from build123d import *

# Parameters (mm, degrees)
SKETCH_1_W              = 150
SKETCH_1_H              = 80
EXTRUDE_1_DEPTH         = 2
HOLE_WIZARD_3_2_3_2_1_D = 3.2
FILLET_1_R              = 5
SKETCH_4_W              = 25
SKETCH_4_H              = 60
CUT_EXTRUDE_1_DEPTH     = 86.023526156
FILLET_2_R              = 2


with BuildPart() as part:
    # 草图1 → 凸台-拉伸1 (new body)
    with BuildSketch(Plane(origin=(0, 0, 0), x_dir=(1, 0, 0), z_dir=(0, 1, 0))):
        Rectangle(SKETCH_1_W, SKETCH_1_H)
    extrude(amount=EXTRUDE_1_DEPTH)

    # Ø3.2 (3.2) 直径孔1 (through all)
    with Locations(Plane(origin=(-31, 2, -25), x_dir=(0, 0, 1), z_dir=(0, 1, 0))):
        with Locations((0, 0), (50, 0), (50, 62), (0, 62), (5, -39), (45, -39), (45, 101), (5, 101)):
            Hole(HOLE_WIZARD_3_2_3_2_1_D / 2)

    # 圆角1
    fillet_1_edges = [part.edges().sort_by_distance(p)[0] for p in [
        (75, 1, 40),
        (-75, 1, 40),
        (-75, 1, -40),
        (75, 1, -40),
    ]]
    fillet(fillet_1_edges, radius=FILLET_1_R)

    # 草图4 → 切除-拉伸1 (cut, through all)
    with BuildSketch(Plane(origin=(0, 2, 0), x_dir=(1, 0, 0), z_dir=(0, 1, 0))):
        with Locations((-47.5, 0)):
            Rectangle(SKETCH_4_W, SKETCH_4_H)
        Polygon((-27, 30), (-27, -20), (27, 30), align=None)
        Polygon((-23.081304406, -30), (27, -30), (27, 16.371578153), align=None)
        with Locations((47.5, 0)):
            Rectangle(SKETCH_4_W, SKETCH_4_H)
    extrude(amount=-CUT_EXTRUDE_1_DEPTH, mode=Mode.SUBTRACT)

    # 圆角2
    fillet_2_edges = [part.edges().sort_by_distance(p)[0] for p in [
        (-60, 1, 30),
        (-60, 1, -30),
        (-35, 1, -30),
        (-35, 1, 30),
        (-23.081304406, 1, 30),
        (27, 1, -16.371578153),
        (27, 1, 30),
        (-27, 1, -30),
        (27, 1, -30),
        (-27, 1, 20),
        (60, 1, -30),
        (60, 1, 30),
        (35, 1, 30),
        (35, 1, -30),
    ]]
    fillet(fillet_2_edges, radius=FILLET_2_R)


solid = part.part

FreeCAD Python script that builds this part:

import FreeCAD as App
import Part
import Sketcher


def edges_at(feature, points):
    """Names of the edges that pass closest to the given points."""
    edges = feature.Shape.Edges
    near = lambda p: min(range(len(edges)), key=lambda i: edges[i].distToShape(Part.Vertex(*p))[0])
    return sorted({f"Edge{near(p) + 1}" for p in points})


def add_polygon(sketch, points):
    """Adds a closed chain of lines whose ends are joined by coincident constraints."""
    first, n = sketch.GeometryCount, len(points)
    for a, b in zip(points, points[1:] + points[:1]):
        sketch.addGeometry(Part.LineSegment(App.Vector(*a, 0), App.Vector(*b, 0)), False)
    for i in range(n):
        sketch.addConstraint(Sketcher.Constraint("Coincident", first + i, 2, first + (i + 1) % n, 1))

doc = App.newDocument("Part")
body = doc.addObject("PartDesign::Body", "Body")

sketch1 = body.newObject("Sketcher::SketchObject", "Sketch")
sketch1.AttachmentSupport = (doc.getObject("XZ_Plane"), [""])
sketch1.MapMode = "FlatFace"
add_polygon(sketch1, [(-75, -40), (-75, 40), (75, 40), (75, -40)])
sketch1.addConstraint([
    Sketcher.Constraint("Vertical", 0),
    Sketcher.Constraint("Horizontal", 1),
    Sketcher.Constraint("Vertical", 2),
    Sketcher.Constraint("Horizontal", 3),
    Sketcher.Constraint("Symmetric", 0, 2, 2, 2, -1, 1),
    Sketcher.Constraint("DistanceX", 1, 1, 1, 2, 150.0),
    Sketcher.Constraint("DistanceY", 0, 1, 0, 2, 80.0),
])
pad1 = body.newObject("PartDesign::Pad", "Pad")
pad1.Profile = sketch1
pad1.Length = 2
pad1.Reversed = True

sketch2 = body.newObject("Sketcher::SketchObject", "Sketch001")
sketch2.AttachmentSupport = (doc.getObject("XZ_Plane"), [""])
sketch2.MapMode = "FlatFace"
sketch2.AttachmentOffset = App.Placement(App.Vector(0, 0, -2), App.Rotation())
sketch2.addGeometry([
    Part.Circle(App.Vector(-31, -25, 0), App.Vector(0, 0, 1), 1.6),
    Part.Circle(App.Vector(-31, 25, 0), App.Vector(0, 0, 1), 1.6),
    Part.Circle(App.Vector(31, 25, 0), App.Vector(0, 0, 1), 1.6),
    Part.Circle(App.Vector(31, -25, 0), App.Vector(0, 0, 1), 1.6),
    Part.Circle(App.Vector(-70, -20, 0), App.Vector(0, 0, 1), 1.6),
    Part.Circle(App.Vector(-70, 20, 0), App.Vector(0, 0, 1), 1.6),
    Part.Circle(App.Vector(70, 20, 0), App.Vector(0, 0, 1), 1.6),
    Part.Circle(App.Vector(70, -20, 0), App.Vector(0, 0, 1), 1.6),
], False)
sketch2.addConstraint([
    Sketcher.Constraint("Equal", 0, 1),
    Sketcher.Constraint("Equal", 1, 2),
    Sketcher.Constraint("Equal", 2, 3),
    Sketcher.Constraint("Equal", 3, 4),
    Sketcher.Constraint("Equal", 4, 5),
    Sketcher.Constraint("Equal", 5, 6),
    Sketcher.Constraint("Equal", 6, 7),
    Sketcher.Constraint("Symmetric", 0, 3, 2, 3, -1, 1),
    Sketcher.Constraint("Symmetric", 1, 3, 3, 3, -1, 1),
    Sketcher.Constraint("Symmetric", 4, 3, 6, 3, -1, 1),
    Sketcher.Constraint("Symmetric", 5, 3, 7, 3, -1, 1),
    Sketcher.Constraint("Symmetric", 1, 3, 2, 3, -2),
    Sketcher.Constraint("Symmetric", 5, 3, 6, 3, -2),
    Sketcher.Constraint("Diameter", 0, 3.2),
    Sketcher.Constraint("DistanceX", 0, 3, -1, 1, 31.0),
    Sketcher.Constraint("DistanceY", 0, 3, -1, 1, 25.0),
    Sketcher.Constraint("DistanceX", 4, 3, -1, 1, 70.0),
    Sketcher.Constraint("DistanceY", 4, 3, -1, 1, 20.0),
])
doc.recompute()
hole = body.newObject("PartDesign::Hole", "Hole")
hole.Profile = sketch2
hole.ThreadType = "None"
hole.Diameter = 3.2
hole.DepthType = "ThroughAll"
hole.Reversed = True
doc.recompute()

fillet = body.newObject("PartDesign::Fillet", "Fillet")
fillet.Base = (hole, edges_at(hole, [
    (75, 1, 40),
    (-75, 1, 40),
    (-75, 1, -40),
    (75, 1, -40),
]))
fillet.Radius = 5

sketch3 = body.newObject("Sketcher::SketchObject", "Sketch002")
sketch3.AttachmentSupport = (doc.getObject("XZ_Plane"), [""])
sketch3.MapMode = "FlatFace"
sketch3.AttachmentOffset = App.Placement(App.Vector(0, 0, -2), App.Rotation())
add_polygon(sketch3, [(-60, -30), (-60, 30), (-35, 30), (-35, -30)])
add_polygon(sketch3, [(-27, -30), (-27, 20), (27, -30)])
add_polygon(sketch3, [(-23, 30), (27, 30), (27, -16)])
add_polygon(sketch3, [(35, -30), (35, 30), (60, 30), (60, -30)])
sketch3.addConstraint([
    Sketcher.Constraint("Vertical", 0),
    Sketcher.Constraint("Horizontal", 1),
    Sketcher.Constraint("Vertical", 2),
    Sketcher.Constraint("Horizontal", 3),
    Sketcher.Constraint("Vertical", 4),
    Sketcher.Constraint("Horizontal", 6),
    Sketcher.Constraint("Horizontal", 7),
    Sketcher.Constraint("Vertical", 8),
    Sketcher.Constraint("Vertical", 10),
    Sketcher.Constraint("Horizontal", 11),
    Sketcher.Constraint("Vertical", 12),
    Sketcher.Constraint("Horizontal", 13),
    Sketcher.Constraint("Symmetric", 6, 2, 7, 2, -1, 1),
    Sketcher.Constraint("Symmetric", 2, 2, 10, 2, -1, 1),
    Sketcher.Constraint("Symmetric", 0, 2, 12, 2, -1, 1),
    Sketcher.Constraint("Parallel", 5, 9),
    Sketcher.Constraint("Horizontal", 3, 2, 5, 2),
    Sketcher.Constraint("Horizontal", 1, 2, 7, 2),
    Sketcher.Constraint("Vertical", 5, 2, 7, 2),
    Sketcher.Constraint("DistanceX", 1, 1, 1, 2, 25.0),
    Sketcher.Constraint("DistanceX", 6, 2, 6, 1, 54.0),
    Sketcher.Constraint("DistanceY", 0, 1, 0, 2, 60.0),
    Sketcher.Constraint("DistanceY", 4, 1, 4, 2, 50.0),
    Sketcher.Constraint("DistanceX", 0, 2, -1, 1, 60.0),
    Sketcher.Constraint("DistanceY", 8, 2, 8, 1, 46.371578),
])
pocket1 = body.newObject("PartDesign::Pocket", "Pocket")
pocket1.Profile = sketch3
pocket1.Type = "ThroughAll"
pocket1.Reversed = True
doc.recompute()

fillet2 = body.newObject("PartDesign::Fillet", "Fillet001")
fillet2.Base = (pocket1, edges_at(pocket1, [
    (-60, 1, 30),
    (-60, 1, -30),
    (-35, 1, -30),
    (-35, 1, 30),
    (-23.081, 1, 30),
    (27, 1, -16.372),
    (27, 1, 30),
    (-27, 1, -30),
    (27, 1, -30),
    (-27, 1, 20),
    (60, 1, -30),
    (60, 1, 30),
    (35, 1, 30),
    (35, 1, -30),
]))
fillet2.Radius = 2

doc.recompute()
